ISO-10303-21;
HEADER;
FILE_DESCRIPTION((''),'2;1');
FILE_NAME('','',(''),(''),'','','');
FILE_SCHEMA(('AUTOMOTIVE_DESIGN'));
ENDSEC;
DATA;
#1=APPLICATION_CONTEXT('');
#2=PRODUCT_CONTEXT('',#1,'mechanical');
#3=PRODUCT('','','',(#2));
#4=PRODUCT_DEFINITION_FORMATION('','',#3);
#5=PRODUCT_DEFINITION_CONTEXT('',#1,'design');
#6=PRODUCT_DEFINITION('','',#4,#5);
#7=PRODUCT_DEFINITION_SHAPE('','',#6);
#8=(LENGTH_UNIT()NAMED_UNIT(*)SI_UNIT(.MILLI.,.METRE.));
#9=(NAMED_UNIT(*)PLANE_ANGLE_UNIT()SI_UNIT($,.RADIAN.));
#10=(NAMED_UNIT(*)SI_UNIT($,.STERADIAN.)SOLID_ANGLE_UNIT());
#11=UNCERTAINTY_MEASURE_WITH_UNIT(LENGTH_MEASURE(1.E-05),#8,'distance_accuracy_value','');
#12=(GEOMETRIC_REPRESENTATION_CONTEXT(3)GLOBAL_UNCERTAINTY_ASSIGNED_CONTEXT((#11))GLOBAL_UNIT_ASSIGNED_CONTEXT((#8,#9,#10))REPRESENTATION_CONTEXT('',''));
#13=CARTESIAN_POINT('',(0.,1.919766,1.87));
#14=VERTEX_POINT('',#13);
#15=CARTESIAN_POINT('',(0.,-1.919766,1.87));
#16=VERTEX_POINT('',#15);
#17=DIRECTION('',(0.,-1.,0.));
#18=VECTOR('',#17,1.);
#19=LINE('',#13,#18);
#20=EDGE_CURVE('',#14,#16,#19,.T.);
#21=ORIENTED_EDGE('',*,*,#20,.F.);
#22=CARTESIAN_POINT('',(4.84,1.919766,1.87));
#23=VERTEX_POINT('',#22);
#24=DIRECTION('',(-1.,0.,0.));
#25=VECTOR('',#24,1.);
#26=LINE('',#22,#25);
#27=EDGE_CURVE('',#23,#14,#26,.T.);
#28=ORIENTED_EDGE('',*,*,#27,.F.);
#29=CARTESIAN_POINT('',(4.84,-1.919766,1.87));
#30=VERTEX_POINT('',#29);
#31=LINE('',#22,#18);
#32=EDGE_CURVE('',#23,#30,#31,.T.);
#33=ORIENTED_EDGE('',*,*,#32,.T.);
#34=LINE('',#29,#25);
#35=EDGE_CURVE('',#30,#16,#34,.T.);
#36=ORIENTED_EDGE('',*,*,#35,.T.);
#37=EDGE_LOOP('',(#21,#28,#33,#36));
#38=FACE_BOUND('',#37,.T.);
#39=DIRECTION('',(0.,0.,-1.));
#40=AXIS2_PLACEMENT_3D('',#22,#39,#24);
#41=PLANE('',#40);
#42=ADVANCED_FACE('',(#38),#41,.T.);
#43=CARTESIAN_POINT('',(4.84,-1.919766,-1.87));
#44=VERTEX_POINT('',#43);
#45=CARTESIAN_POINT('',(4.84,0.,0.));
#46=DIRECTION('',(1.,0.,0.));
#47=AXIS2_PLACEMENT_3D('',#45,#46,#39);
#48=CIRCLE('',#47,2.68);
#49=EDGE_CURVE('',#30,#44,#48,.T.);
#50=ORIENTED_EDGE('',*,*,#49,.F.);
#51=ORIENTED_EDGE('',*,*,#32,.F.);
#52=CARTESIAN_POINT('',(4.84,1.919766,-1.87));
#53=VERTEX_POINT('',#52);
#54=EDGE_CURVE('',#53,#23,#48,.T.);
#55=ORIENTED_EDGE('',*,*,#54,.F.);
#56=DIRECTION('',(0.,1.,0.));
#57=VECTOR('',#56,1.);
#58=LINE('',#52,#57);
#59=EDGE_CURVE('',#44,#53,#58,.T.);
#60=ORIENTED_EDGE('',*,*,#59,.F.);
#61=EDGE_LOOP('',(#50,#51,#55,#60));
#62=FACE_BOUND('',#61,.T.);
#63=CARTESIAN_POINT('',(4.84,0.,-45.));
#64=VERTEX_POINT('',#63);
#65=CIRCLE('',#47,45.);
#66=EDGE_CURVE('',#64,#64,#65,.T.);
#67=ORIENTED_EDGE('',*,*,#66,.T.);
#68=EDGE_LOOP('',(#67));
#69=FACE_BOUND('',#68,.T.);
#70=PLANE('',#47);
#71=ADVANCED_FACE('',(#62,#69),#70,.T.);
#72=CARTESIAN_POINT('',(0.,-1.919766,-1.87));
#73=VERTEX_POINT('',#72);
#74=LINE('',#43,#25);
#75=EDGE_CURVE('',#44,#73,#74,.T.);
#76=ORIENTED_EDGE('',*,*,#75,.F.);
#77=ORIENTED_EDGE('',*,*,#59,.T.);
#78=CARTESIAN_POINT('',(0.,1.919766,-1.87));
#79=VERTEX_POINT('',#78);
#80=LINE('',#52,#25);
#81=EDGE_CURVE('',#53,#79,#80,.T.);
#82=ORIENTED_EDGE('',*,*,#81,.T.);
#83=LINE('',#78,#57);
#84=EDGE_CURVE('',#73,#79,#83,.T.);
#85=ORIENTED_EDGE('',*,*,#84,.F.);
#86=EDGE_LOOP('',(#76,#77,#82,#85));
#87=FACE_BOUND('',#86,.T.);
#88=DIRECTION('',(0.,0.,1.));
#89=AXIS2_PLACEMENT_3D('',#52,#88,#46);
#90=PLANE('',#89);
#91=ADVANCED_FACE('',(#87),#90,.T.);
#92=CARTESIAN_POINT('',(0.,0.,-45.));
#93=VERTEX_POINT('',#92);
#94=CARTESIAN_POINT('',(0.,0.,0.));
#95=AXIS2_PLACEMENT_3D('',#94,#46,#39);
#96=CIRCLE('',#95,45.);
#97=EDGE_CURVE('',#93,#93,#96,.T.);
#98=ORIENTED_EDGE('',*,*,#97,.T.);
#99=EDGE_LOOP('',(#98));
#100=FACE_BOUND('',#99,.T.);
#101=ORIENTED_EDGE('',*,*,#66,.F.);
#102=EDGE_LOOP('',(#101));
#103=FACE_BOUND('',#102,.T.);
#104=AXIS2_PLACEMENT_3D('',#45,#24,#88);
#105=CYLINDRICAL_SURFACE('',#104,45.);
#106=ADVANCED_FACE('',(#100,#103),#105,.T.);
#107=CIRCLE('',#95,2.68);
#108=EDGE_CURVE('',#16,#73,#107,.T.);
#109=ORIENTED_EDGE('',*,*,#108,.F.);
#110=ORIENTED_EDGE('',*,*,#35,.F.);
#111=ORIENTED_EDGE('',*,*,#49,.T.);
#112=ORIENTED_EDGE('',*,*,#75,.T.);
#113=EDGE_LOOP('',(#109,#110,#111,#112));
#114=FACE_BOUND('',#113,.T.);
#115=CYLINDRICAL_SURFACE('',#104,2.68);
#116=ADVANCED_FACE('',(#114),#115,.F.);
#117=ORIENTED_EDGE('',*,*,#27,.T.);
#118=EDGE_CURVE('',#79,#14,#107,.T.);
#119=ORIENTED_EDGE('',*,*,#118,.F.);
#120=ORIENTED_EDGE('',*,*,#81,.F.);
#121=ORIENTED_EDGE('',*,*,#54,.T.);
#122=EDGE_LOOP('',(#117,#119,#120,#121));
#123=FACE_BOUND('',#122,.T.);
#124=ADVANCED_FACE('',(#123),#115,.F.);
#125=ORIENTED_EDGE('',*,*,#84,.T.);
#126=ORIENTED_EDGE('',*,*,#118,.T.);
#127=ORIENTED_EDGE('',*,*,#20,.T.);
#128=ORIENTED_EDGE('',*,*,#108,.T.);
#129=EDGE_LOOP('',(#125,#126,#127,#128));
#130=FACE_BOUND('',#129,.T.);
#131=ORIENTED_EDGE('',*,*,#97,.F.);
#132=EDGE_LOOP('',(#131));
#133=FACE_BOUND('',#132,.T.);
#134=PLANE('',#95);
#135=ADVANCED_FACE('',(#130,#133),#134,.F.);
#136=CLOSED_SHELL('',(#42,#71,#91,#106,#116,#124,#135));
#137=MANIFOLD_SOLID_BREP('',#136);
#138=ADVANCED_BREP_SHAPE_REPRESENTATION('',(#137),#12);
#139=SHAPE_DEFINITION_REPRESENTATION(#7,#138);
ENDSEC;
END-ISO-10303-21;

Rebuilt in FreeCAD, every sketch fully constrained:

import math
import FreeCAD as App
import Part
import Sketcher

doc = App.newDocument("Part")
body = doc.addObject("PartDesign::Body", "Body")

sketch1 = body.newObject("Sketcher::SketchObject", "Sketch")
sketch1.AttachmentSupport = (doc.getObject("YZ_Plane"), [""])
sketch1.MapMode = "FlatFace"
sketch1.addGeometry(Part.Circle(App.Vector(0, 0, 0), App.Vector(0, 0, 1), 45), False)
sketch1.addGeometry(Part.LineSegment(App.Vector(-1.9, 1.9, 0), App.Vector(1.9, 1.9, 0)), False)
sketch1.addGeometry(Part.ArcOfCircle(Part.Circle(App.Vector(0, 0, 0), App.Vector(0, 0, 1), 2.7), math.radians(-44), math.radians(44)), False)
sketch1.addGeometry(Part.LineSegment(App.Vector(1.9, -1.9, 0), App.Vector(-1.9, -1.9, 0)), False)
sketch1.addGeometry(Part.ArcOfCircle(Part.Circle(App.Vector(0, 0, 0), App.Vector(0, 0, 1), 2.7), math.radians(136), math.radians(224)), False)
sketch1.addConstraint(Sketcher.Constraint("Coincident", 1, 2, 2, 2))
sketch1.addConstraint(Sketcher.Constraint("Coincident", 2, 1, 3, 1))
sketch1.addConstraint(Sketcher.Constraint("Coincident", 3, 2, 4, 2))
sketch1.addConstraint(Sketcher.Constraint("Coincident", 4, 1, 1, 1))
sketch1.addConstraint(Sketcher.Constraint("Horizontal", 1))
sketch1.addConstraint(Sketcher.Constraint("Horizontal", 3))
sketch1.addConstraint(Sketcher.Constraint("Coincident", 0, 3, -1, 1))
sketch1.addConstraint(Sketcher.Constraint("Coincident", 2, 3, -1, 1))
sketch1.addConstraint(Sketcher.Constraint("Coincident", 4, 3, -1, 1))
sketch1.addConstraint(Sketcher.Constraint("Equal", 2, 4))
sketch1.addConstraint(Sketcher.Constraint("Vertical", 1, 2, 2, 1))
sketch1.addConstraint(Sketcher.Constraint("Diameter", 0, 90.0))
sketch1.addConstraint(Sketcher.Constraint("Radius", 2, 2.68))
sketch1.addConstraint(Sketcher.Constraint("DistanceY", -1, 1, 1, 2, 1.87))
pad1 = body.newObject("PartDesign::Pad", "Pad")
pad1.Profile = sketch1
pad1.Length = 4.84

doc.recompute()
